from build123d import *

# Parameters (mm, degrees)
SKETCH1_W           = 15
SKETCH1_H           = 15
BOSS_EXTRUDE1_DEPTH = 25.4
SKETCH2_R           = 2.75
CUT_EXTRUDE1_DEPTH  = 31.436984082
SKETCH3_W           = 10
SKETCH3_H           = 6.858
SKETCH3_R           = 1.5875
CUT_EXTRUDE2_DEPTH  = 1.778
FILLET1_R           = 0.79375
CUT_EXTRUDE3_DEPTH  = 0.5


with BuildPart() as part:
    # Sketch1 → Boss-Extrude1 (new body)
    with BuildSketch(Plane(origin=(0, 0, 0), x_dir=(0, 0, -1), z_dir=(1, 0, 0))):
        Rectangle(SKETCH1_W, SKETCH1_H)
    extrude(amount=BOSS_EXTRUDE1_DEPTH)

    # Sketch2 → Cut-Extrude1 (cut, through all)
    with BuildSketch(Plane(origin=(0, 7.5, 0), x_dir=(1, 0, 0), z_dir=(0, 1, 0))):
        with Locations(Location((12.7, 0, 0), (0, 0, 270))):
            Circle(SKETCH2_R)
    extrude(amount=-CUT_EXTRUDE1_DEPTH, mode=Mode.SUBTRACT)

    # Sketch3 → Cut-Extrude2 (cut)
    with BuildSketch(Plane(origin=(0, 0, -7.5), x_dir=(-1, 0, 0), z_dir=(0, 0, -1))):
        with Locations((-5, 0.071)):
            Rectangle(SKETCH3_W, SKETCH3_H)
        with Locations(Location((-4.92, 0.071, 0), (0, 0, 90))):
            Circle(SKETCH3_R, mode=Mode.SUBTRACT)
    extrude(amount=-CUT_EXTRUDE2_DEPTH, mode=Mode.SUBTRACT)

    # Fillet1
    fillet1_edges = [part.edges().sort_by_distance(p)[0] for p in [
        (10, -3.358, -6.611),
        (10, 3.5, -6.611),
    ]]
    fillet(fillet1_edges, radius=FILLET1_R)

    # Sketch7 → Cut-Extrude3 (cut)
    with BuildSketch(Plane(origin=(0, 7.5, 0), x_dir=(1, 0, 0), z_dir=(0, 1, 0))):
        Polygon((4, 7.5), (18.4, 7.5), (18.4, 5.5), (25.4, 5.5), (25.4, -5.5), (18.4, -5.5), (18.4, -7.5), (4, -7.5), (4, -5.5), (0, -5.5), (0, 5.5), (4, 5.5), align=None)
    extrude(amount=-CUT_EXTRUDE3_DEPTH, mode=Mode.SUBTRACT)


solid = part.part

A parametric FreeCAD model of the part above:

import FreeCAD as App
import Part
import Sketcher
Q = App.Units.Quantity


def edges_at(feature, points):
    """Names of the edges that pass closest to the given points."""
    edges = feature.Shape.Edges
    near = lambda p: min(range(len(edges)), key=lambda i: edges[i].distToShape(Part.Vertex(*p))[0])
    return sorted({f"Edge{near(p) + 1}" for p in points})


def add_polygon(sketch, points):
    """Adds a closed chain of lines whose ends are joined by coincident constraints."""
    first, n = sketch.GeometryCount, len(points)
    for a, b in zip(points, points[1:] + points[:1]):
        sketch.addGeometry(Part.LineSegment(App.Vector(*a, 0), App.Vector(*b, 0)), False)
    for i in range(n):
        sketch.addConstraint(Sketcher.Constraint("Coincident", first + i, 2, first + (i + 1) % n, 1))

doc = App.newDocument("Part")
body = doc.addObject("PartDesign::Body", "Body")

# Sketch on YZ plane
sketch1 = doc.addObject("Sketcher::SketchObject", "Sketch")
body.addObject(sketch1)
sketch1.AttachmentSupport = (doc.YZ_Plane, [""])
sketch1.MapMode = "FlatFace"
add_polygon(sketch1, [(8, 8), (-8, 8), (-8, -8), (8, -8)])  # lines 0-3
sketch1.addConstraint([
    Sketcher.Constraint("Horizontal", 0),
    Sketcher.Constraint("Vertical", 1),
    Sketcher.Constraint("Horizontal", 2),
    Sketcher.Constraint("Vertical", 3),
    Sketcher.Constraint("Symmetric", 0, 2, 2, 2, -1, 1),
    Sketcher.Constraint("Equal", 2, 1),
    Sketcher.Constraint("DistanceX", 0, 2, 0, 1, Q("15 mm")),
])
pad1 = doc.addObject("PartDesign::Pad", "Pad")
body.addObject(pad1)
pad1.Profile = sketch1
pad1.Length = 25.4

# Sketch on XZ plane
sketch2 = doc.addObject("Sketcher::SketchObject", "Sketch001")
body.addObject(sketch2)
sketch2.AttachmentSupport = (doc.XZ_Plane, [""])
sketch2.MapMode = "FlatFace"
sketch2.AttachmentOffset = App.Placement(App.Vector(0, 0, -7.5), App.Rotation())
sketch2.addGeometry(Part.Circle(App.Vector(12.7, 0, 0), App.Vector(0, 0, 1), 2.8), False)
sketch2.addConstraint([
    Sketcher.Constraint("PointOnObject", 0, 3, -1),
    Sketcher.Constraint("Diameter", 0, Q("5.5 mm")),
    Sketcher.Constraint("DistanceX", -1, 1, 0, 3, Q("12.7 mm")),
])
pocket1 = doc.addObject("PartDesign::Pocket", "Pocket")
body.addObject(pocket1)
pocket1.Profile = sketch2
pocket1.Type = "ThroughAll"
pocket1.Reversed = True

# Sketch on XY plane
sketch3 = doc.addObject("Sketcher::SketchObject", "Sketch002")
body.addObject(sketch3)
sketch3.AttachmentSupport = (doc.XY_Plane, [""])
sketch3.MapMode = "FlatFace"
sketch3.AttachmentOffset = App.Placement(App.Vector(0, 0, -7.5), App.Rotation())
add_polygon(sketch3, [(10, 3.5), (10, -3.4), (0, -3.4), (0, 3.5)])  # lines 0-3
sketch3.addGeometry(Part.Circle(App.Vector(4.9, 0.1, 0), App.Vector(0, 0, 1), 1.6), False)  # 4
sketch3.addConstraint([
    Sketcher.Constraint("Vertical", 0),
    Sketcher.Constraint("Horizontal", 1),
    Sketcher.Constraint("Vertical", 2),
    Sketcher.Constraint("Horizontal", 3),
    Sketcher.Constraint("PointOnObject", 1, 2, -2),
    Sketcher.Constraint("DistanceX", 1, 2, 1, 1, Q("10 mm")),
    Sketcher.Constraint("Diameter", 4, Q("3.175 mm")),
    Sketcher.Constraint("DistanceY", -1, 1, 2, 2, Q("3.5 mm")),
    Sketcher.Constraint("DistanceY", 0, 2, 0, 1, Q("6.858 mm")),
    Sketcher.Constraint("DistanceX", -1, 1, 4, 3, Q("4.92 mm")),
    Sketcher.Constraint("DistanceY", -1, 1, 4, 3, Q("0.071 mm")),
])
pocket2 = doc.addObject("PartDesign::Pocket", "Pocket001")
body.addObject(pocket2)
pocket2.Profile = sketch3
pocket2.Length = 1.778
pocket2.Reversed = True
doc.recompute()

fillet = doc.addObject("PartDesign::Fillet", "Fillet")
body.addObject(fillet)
fillet.Base = (pocket2, edges_at(pocket2, [(10, -3.358, -6.611), (10, 3.5, -6.611)]))
fillet.Radius = 0.79375

# Sketch on XZ plane
sketch4 = doc.addObject("Sketcher::SketchObject", "Sketch003")
body.addObject(sketch4)
sketch4.AttachmentSupport = (doc.XZ_Plane, [""])
sketch4.MapMode = "FlatFace"
sketch4.AttachmentOffset = App.Placement(App.Vector(0, 0, -7.5), App.Rotation())
add_polygon(sketch4, [(18.4, -7.5), (4, -7.5), (4, -5.5), (0, -5.5), (0, 5.5), (4, 5.5), (4, 7.5), (18.4, 7.5), (18.4, 5.5), (25.4, 5.5), (25.4, -5.5), (18.4, -5.5)])  # lines 0-11
sketch4.addConstraint([
    Sketcher.Constraint("Horizontal", 0),
    Sketcher.Constraint("Vertical", 1),
    Sketcher.Constraint("Horizontal", 2),
    Sketcher.Constraint("Vertical", 3),
    Sketcher.Constraint("Horizontal", 4),
    Sketcher.Constraint("Vertical", 5),
    Sketcher.Constraint("Horizontal", 6),
    Sketcher.Constraint("Vertical", 7),
    Sketcher.Constraint("Horizontal", 8),
    Sketcher.Constraint("Vertical", 9),
    Sketcher.Constraint("Horizontal", 10),
    Sketcher.Constraint("Vertical", 11),
    Sketcher.Constraint("Symmetric", 2, 2, 3, 2, -1, 1),
    Sketcher.Constraint("Symmetric", 0, 2, 5, 2, -1),
    Sketcher.Constraint("Symmetric", 7, 2, 10, 2, -1),
    Sketcher.Constraint("Horizontal", 4, 2, 7, 2),
    Sketcher.Constraint("DistanceX", 2, 2, 2, 1, Q("4 mm")),
    Sketcher.Constraint("DistanceX", 8, 1, 8, 2, Q("7 mm")),
    Sketcher.Constraint("DistanceY", 1, 1, 1, 2, Q("2 mm")),
    Sketcher.Constraint("DistanceY", 3, 1, 3, 2, Q("11 mm")),
    Sketcher.Constraint("DistanceX", 0, 2, 0, 1, Q("14.4 mm")),
])
pocket3 = doc.addObject("PartDesign::Pocket", "Pocket002")
body.addObject(pocket3)
pocket3.Profile = sketch4
pocket3.Length = 0.5
pocket3.Reversed = True

doc.recompute()
